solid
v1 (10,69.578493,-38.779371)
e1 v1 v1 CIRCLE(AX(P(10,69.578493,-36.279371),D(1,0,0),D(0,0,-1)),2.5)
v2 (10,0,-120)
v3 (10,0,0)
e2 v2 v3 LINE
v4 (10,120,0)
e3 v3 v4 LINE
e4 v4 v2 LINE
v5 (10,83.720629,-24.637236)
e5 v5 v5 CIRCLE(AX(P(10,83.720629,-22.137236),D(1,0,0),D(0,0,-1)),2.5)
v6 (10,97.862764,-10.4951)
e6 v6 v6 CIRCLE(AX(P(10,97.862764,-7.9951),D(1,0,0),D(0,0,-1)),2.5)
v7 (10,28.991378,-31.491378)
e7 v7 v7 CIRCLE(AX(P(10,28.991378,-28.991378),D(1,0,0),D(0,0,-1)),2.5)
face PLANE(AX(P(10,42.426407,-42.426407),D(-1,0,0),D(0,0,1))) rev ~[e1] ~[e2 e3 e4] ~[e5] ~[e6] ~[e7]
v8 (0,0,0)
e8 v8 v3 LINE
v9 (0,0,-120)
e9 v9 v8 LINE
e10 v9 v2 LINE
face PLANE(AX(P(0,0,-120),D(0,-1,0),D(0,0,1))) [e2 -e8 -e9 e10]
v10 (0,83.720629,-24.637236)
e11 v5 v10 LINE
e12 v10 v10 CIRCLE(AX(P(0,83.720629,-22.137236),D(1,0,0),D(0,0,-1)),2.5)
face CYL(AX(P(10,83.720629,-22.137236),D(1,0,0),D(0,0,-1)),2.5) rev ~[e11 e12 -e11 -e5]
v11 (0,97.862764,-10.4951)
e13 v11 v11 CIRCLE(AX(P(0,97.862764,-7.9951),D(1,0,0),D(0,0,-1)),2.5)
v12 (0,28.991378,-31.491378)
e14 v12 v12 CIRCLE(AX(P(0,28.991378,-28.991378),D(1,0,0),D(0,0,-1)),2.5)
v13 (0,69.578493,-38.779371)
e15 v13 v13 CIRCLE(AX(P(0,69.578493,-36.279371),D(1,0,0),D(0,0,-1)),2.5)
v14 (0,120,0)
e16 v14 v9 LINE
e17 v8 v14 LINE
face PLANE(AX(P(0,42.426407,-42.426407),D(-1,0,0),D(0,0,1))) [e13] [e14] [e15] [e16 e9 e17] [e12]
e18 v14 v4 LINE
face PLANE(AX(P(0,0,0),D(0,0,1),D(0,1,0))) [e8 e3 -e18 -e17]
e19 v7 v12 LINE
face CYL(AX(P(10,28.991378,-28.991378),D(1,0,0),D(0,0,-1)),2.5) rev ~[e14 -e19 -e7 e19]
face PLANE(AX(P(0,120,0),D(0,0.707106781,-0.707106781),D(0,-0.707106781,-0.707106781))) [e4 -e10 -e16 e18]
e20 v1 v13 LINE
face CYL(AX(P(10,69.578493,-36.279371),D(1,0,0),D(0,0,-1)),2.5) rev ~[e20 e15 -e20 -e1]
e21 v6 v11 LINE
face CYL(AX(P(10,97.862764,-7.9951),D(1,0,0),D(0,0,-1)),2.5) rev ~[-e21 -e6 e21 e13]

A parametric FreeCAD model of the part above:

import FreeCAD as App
import Part
import Sketcher

doc = App.newDocument("Part")
body = doc.addObject("PartDesign::Body", "Body")

sketch1 = body.newObject("Sketcher::SketchObject", "Sketch")
sketch1.AttachmentSupport = (doc.getObject("YZ_Plane"), [""])
sketch1.MapMode = "FlatFace"
sketch1.addGeometry([
    Part.LineSegment(App.Vector(120, 0, 0), App.Vector(0, 0, 0)),
    Part.LineSegment(App.Vector(0, 0, 0), App.Vector(0, -120, 0)),
    Part.LineSegment(App.Vector(0, -120, 0), App.Vector(120, 0, 0)),
], False)
sketch1.addConstraint([
    Sketcher.Constraint("Coincident", 0, 2, 1, 1),
    Sketcher.Constraint("Coincident", 1, 2, 2, 1),
    Sketcher.Constraint("Coincident", 2, 2, 0, 1),
    Sketcher.Constraint("Horizontal", 0),
    Sketcher.Constraint("Vertical", 1),
    Sketcher.Constraint("Coincident", 0, 2, -1, 1),
    Sketcher.Constraint("Equal", 0, 1),
    Sketcher.Constraint("DistanceX", 0, 2, 0, 1, 120.0),
])
pad1 = body.newObject("PartDesign::Pad", "Pad")
pad1.Profile = sketch1
pad1.Length = 10

sketch2 = body.newObject("Sketcher::SketchObject", "Sketch001")
sketch2.AttachmentSupport = (doc.getObject("YZ_Plane"), [""])
sketch2.MapMode = "FlatFace"
sketch2.AttachmentOffset = App.Placement(App.Vector(0, 0, 10), App.Rotation())
sketch2.addGeometry([
    Part.Circle(App.Vector(83.7, -22.1, 0), App.Vector(0, 0, 1), 2.5),
    Part.Circle(App.Vector(69.6, -36.3, 0), App.Vector(0, 0, 1), 2.5),
    Part.Circle(App.Vector(97.9, -8, 0), App.Vector(0, 0, 1), 2.5),
    Part.Circle(App.Vector(29, -29, 0), App.Vector(0, 0, 1), 2.5),
], False)
sketch2.addConstraint([
    Sketcher.Constraint("Equal", 0, 1),
    Sketcher.Constraint("Equal", 1, 2),
    Sketcher.Constraint("Equal", 2, 3),
    Sketcher.Constraint("Diameter", 0, 5.0),
    Sketcher.Constraint("DistanceY", 2, 3, -1, 1, 7.9951),
    Sketcher.Constraint("DistanceX", -1, 1, 0, 3, 83.720629),
    Sketcher.Constraint("DistanceY", 1, 3, -1, 1, 36.279371),
    Sketcher.Constraint("DistanceX", -1, 1, 3, 3, 28.991378),
    Sketcher.Constraint("DistanceY", 3, 3, -1, 1, 28.991378),
    Sketcher.Constraint("DistanceX", 1, 3, 2, 3, 28.284271),
    Sketcher.Constraint("DistanceY", 0, 3, -1, 1, 22.137236),
    Sketcher.Constraint("DistanceX", -1, 1, 1, 3, 69.578493),
])
pocket1 = body.newObject("PartDesign::Pocket", "Pocket")
pocket1.Profile = sketch2
pocket1.Length = 10

doc.recompute()
